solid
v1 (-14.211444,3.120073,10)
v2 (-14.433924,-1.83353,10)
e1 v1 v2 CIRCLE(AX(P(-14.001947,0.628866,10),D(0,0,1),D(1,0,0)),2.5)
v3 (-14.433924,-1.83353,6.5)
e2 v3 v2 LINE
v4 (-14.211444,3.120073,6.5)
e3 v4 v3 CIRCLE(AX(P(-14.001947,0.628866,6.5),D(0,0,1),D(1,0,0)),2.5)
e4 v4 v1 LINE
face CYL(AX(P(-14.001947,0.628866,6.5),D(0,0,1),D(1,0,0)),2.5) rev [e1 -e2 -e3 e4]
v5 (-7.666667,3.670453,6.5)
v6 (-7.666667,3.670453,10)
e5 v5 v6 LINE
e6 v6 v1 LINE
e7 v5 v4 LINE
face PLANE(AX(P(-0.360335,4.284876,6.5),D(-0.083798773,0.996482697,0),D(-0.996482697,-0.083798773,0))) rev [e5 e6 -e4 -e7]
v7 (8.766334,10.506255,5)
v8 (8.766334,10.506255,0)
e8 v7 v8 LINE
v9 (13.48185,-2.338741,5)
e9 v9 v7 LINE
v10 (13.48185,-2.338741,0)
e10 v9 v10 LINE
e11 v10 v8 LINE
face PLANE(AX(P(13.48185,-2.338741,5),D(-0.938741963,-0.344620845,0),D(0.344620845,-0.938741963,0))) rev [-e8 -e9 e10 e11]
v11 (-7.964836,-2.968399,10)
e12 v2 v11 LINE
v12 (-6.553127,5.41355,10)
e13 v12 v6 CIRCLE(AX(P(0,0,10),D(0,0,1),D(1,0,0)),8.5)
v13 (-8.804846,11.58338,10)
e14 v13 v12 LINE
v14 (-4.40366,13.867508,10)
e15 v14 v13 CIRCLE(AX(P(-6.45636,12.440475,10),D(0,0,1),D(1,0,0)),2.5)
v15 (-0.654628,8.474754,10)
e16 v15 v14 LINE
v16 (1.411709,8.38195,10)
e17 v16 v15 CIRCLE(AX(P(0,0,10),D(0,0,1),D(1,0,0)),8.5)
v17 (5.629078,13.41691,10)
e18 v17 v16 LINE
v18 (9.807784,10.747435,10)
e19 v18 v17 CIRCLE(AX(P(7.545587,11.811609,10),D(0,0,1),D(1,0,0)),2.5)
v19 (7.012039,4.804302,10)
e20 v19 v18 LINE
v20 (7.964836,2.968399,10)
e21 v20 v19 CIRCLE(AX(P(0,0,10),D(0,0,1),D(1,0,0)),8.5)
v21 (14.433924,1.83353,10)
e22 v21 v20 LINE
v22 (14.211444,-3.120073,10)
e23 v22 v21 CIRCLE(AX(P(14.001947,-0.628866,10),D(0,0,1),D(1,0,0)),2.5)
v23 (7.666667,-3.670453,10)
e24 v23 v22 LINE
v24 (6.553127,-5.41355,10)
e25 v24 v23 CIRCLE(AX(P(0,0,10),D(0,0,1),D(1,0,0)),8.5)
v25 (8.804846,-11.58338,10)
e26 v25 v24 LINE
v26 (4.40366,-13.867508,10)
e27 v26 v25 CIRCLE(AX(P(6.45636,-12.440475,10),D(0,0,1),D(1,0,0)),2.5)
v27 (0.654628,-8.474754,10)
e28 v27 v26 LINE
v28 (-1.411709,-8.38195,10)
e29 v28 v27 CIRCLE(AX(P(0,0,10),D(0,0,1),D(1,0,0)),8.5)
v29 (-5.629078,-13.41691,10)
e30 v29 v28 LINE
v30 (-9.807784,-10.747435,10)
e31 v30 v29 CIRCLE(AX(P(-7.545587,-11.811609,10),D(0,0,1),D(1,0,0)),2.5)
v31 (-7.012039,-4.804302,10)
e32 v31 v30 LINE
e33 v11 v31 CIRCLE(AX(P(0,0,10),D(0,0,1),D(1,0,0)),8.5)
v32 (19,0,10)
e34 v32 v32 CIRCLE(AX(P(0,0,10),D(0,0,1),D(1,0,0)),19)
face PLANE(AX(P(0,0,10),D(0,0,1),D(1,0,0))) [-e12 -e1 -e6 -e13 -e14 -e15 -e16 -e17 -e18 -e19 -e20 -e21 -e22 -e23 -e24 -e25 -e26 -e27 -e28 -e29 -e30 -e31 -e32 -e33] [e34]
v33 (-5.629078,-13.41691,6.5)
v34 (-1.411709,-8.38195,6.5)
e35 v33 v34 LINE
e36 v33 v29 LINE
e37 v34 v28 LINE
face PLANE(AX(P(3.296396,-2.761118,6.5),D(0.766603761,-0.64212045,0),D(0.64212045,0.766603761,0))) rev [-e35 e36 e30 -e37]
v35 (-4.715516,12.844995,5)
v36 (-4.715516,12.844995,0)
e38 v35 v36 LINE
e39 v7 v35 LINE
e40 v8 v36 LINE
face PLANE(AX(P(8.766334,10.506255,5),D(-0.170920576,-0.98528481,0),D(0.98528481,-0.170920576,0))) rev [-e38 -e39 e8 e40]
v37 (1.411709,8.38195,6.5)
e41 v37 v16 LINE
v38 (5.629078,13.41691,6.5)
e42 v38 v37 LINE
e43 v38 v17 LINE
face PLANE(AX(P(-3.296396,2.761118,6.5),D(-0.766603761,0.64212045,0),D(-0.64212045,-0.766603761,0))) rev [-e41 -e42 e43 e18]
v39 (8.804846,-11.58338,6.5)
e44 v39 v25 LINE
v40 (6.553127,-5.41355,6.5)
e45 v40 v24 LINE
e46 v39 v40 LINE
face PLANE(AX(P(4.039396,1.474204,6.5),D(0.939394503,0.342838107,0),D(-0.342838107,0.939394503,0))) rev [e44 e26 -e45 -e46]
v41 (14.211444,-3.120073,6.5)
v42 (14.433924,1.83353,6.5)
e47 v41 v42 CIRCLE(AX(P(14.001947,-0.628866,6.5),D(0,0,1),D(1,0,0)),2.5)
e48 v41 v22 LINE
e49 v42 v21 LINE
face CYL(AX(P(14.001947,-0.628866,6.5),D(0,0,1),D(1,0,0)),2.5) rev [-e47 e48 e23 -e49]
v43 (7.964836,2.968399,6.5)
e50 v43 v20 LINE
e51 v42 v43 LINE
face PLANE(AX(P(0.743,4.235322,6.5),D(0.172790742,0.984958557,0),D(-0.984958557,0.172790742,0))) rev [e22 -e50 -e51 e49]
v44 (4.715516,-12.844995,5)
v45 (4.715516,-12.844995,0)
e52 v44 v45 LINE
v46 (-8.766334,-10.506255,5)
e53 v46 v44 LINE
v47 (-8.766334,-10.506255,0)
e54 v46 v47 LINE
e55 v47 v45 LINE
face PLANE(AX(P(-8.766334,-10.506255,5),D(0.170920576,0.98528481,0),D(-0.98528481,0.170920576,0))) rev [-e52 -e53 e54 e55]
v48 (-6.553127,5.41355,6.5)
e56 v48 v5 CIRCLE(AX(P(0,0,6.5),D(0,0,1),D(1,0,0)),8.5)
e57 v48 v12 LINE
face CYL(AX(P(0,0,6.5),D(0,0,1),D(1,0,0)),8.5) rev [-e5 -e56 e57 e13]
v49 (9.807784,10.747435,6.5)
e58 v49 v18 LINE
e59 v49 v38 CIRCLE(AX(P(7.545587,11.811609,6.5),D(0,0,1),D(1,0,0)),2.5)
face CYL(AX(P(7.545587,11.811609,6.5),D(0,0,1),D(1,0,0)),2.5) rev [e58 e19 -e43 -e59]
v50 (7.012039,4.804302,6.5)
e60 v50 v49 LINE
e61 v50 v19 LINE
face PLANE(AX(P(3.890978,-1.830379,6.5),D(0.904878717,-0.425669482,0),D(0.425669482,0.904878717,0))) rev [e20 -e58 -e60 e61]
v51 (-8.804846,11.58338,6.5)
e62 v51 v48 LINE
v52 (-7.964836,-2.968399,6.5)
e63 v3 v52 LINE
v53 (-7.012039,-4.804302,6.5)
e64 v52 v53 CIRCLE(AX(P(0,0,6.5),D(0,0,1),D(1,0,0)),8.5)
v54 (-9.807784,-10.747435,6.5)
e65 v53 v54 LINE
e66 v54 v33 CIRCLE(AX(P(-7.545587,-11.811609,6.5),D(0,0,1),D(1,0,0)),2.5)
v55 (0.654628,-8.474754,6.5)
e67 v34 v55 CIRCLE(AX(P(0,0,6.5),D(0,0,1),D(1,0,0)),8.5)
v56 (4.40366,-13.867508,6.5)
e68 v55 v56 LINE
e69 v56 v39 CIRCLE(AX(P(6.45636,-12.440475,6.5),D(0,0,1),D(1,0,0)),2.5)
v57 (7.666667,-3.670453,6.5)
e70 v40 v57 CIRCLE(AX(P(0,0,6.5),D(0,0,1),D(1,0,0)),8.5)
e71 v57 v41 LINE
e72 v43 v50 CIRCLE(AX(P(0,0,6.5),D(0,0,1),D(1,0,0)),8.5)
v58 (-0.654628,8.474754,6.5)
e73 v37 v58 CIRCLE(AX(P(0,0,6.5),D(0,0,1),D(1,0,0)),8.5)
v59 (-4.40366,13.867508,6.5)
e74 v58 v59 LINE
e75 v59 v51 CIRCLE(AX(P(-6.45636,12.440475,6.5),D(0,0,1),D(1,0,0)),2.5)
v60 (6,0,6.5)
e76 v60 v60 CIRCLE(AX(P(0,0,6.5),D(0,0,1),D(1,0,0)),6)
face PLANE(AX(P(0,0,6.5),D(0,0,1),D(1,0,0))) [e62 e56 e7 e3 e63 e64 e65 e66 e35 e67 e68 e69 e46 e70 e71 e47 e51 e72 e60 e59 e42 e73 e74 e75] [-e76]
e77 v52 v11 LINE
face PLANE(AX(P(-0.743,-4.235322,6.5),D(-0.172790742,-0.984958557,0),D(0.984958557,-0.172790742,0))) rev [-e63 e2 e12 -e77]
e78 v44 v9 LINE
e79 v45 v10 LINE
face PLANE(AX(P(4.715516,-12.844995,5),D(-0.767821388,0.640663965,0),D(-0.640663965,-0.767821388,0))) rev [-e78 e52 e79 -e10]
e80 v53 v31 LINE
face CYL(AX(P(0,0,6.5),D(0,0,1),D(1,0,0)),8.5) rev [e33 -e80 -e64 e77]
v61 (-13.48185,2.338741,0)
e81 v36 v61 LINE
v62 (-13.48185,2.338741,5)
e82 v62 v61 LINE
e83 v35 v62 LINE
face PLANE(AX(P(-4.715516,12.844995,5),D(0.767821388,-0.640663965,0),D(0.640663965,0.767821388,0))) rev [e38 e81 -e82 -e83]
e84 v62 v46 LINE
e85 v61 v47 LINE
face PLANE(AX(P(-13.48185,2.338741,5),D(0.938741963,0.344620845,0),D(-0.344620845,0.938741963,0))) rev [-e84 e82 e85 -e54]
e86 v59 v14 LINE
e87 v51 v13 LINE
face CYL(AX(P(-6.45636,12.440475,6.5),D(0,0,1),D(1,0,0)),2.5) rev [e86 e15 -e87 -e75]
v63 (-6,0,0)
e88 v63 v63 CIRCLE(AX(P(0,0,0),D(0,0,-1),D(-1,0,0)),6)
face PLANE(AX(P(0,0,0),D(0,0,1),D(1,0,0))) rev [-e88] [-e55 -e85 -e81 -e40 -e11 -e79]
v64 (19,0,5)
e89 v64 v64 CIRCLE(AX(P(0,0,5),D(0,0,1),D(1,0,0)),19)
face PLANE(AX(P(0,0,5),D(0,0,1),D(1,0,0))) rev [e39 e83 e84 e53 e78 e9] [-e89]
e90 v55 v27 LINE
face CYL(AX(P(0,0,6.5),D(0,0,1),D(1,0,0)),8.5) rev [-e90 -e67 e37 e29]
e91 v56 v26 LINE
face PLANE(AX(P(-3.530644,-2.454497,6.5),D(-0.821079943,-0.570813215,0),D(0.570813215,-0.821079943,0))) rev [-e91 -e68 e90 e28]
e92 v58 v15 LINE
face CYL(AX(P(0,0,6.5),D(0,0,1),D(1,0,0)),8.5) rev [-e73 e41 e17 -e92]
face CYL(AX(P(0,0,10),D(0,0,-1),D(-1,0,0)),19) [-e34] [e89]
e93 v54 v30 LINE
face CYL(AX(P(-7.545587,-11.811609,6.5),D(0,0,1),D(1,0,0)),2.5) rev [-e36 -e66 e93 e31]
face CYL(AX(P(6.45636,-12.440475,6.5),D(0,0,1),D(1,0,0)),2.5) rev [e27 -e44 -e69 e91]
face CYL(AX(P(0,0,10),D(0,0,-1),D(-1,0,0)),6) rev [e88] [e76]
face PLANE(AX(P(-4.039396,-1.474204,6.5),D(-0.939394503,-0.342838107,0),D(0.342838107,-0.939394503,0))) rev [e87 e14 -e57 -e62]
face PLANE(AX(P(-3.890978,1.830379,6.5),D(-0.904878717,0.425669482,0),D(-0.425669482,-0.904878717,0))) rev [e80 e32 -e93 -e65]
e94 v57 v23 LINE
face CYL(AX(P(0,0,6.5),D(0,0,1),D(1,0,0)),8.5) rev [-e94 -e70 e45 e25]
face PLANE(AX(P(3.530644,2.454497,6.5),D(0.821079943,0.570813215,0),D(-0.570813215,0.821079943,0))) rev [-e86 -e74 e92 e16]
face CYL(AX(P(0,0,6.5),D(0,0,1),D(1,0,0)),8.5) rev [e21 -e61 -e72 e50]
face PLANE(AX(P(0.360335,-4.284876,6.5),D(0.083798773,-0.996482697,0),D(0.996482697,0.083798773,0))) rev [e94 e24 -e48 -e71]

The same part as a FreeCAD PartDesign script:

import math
import FreeCAD as App
import Part
import Sketcher

V = App.Vector
Q = App.Units.Quantity


def add_polygon(sketch, points):
    """Adds a closed chain of lines whose ends are joined by coincident constraints."""
    first, n = sketch.GeometryCount, len(points)
    for a, b in zip(points, points[1:] + points[:1]):
        sketch.addGeometry(Part.LineSegment(App.Vector(*a, 0), App.Vector(*b, 0)), False)
    for i in range(n):
        sketch.addConstraint(Sketcher.Constraint("Coincident", first + i, 2, first + (i + 1) % n, 1))

doc = App.newDocument("Part")
body = doc.addObject("PartDesign::Body", "Body")

# Sketch on XY plane
sketch1 = doc.addObject("Sketcher::SketchObject", "Sketch")
body.addObject(sketch1)
sketch1.AttachmentSupport = (doc.XY_Plane, [""])
sketch1.MapMode = "FlatFace"
add_polygon(sketch1, [(9, 11), (-5, 13), (-13, 2), (-9, -11), (5, -13), (13, -2)])  # lines 0-5
sketch1.addConstraint(Sketcher.Constraint("Symmetric", 0, 2, 3, 2, -1, 1))
sketch1.addConstraint(Sketcher.Constraint("Symmetric", 1, 2, 4, 2, -1, 1))
sketch1.addConstraint(Sketcher.Constraint("Symmetric", 2, 2, 5, 2, -1, 1))
sketch1.addConstraint(Sketcher.Constraint("Equal", 0, 1))
sketch1.addConstraint(Sketcher.Constraint("Equal", 1, 2))
sketch1.addConstraint(Sketcher.Constraint("Distance", 0, Q("13.683201 mm")))
sketch1.addConstraint(Sketcher.Constraint("DistanceX", 1, 2, 4, 2, Q("26.963701 mm")))
sketch1.addConstraint(Sketcher.Constraint("DistanceY", -1, 1, 1, 2, Q("2.338741 mm")))
sketch1.addConstraint(Sketcher.Constraint("DistanceY", 2, 2, 0, 2, Q("23.35125 mm")))
pad1 = doc.addObject("PartDesign::Pad", "Pad")
body.addObject(pad1)
pad1.Profile = sketch1
pad1.Length = 5

# Sketch on XY plane
sketch2 = doc.addObject("Sketcher::SketchObject", "Sketch001")
body.addObject(sketch2)
sketch2.AttachmentSupport = (doc.XY_Plane, [""])
sketch2.MapMode = "FlatFace"
sketch2.AttachmentOffset = App.Placement(V(0, 0, 5), App.Rotation())
sketch2.addGeometry(Part.Circle(V(0, 0, 0), V(0, 0, 1), 19), False)
sketch2.addConstraint(Sketcher.Constraint("Coincident", 0, 3, -1, 1))
sketch2.addConstraint(Sketcher.Constraint("Diameter", 0, Q("38 mm")))
pad2 = doc.addObject("PartDesign::Pad", "Pad001")
body.addObject(pad2)
pad2.Profile = sketch2
pad2.Length = 5

# Sketch on XY plane
sketch3 = doc.addObject("Sketcher::SketchObject", "Sketch002")
body.addObject(sketch3)
sketch3.AttachmentSupport = (doc.XY_Plane, [""])
sketch3.MapMode = "FlatFace"
sketch3.AttachmentOffset = App.Placement(V(0, 0, 10), App.Rotation())
sketch3.addGeometry(Part.LineSegment(V(7.7, -3.7, 0), V(14.2, -3.1, 0)), False)
sketch3.addGeometry(Part.ArcOfCircle(Part.Circle(V(14, -0.6, 0), V(0, 0, 1), 2.5), math.radians(-85), math.radians(80)), False)
sketch3.addGeometry(Part.LineSegment(V(14.4, 1.8, 0), V(8, 3, 0)), False)
sketch3.addGeometry(Part.ArcOfCircle(Part.Circle(V(0, 0, 0), V(0, 0, 1), 8.5), math.radians(20.44), math.radians(34.42)), False)
sketch3.addGeometry(Part.LineSegment(V(7, 4.8, 0), V(9.8, 10.7, 0)), False)
sketch3.addGeometry(Part.ArcOfCircle(Part.Circle(V(7.5, 11.8, 0), V(0, 0, 1), 2.5), math.radians(-25), math.radians(140)), False)
sketch3.addGeometry(Part.LineSegment(V(5.6, 13.4, 0), V(1.4, 8.4, 0)), False)
sketch3.addGeometry(Part.ArcOfCircle(Part.Circle(V(0, 0, 0), V(0, 0, 1), 8.5), math.radians(80.44), math.radians(94.42)), False)
sketch3.addGeometry(Part.LineSegment(V(-0.7, 8.5, 0), V(-4.4, 13.9, 0)), False)
sketch3.addGeometry(Part.ArcOfCircle(Part.Circle(V(-6.5, 12.4, 0), V(0, 0, 1), 2.5), math.radians(35), math.radians(200)), False)
sketch3.addGeometry(Part.LineSegment(V(-8.8, 11.6, 0), V(-6.6, 5.4, 0)), False)
sketch3.addGeometry(Part.ArcOfCircle(Part.Circle(V(0, 0, 0), V(0, 0, 1), 8.5), math.radians(140.44), math.radians(154.42)), False)
sketch3.addGeometry(Part.LineSegment(V(-7.7, 3.7, 0), V(-14.2, 3.1, 0)), False)
sketch3.addGeometry(Part.ArcOfCircle(Part.Circle(V(-14, 0.6, 0), V(0, 0, 1), 2.5), math.radians(95), math.radians(260)), False)
sketch3.addGeometry(Part.LineSegment(V(-14.4, -1.8, 0), V(-8, -3, 0)), False)
sketch3.addGeometry(Part.ArcOfCircle(Part.Circle(V(0, 0, 0), V(0, 0, 1), 8.5), math.radians(-159.56), math.radians(-145.58)), False)
sketch3.addGeometry(Part.LineSegment(V(-7, -4.8, 0), V(-9.8, -10.7, 0)), False)
sketch3.addGeometry(Part.ArcOfCircle(Part.Circle(V(-7.5, -11.8, 0), V(0, 0, 1), 2.5), math.radians(155), math.radians(320)), False)
sketch3.addGeometry(Part.LineSegment(V(-5.6, -13.4, 0), V(-1.4, -8.4, 0)), False)
sketch3.addGeometry(Part.ArcOfCircle(Part.Circle(V(0, 0, 0), V(0, 0, 1), 8.5), math.radians(-99.56), math.radians(-85.58)), False)
sketch3.addGeometry(Part.LineSegment(V(0.7, -8.5, 0), V(4.4, -13.9, 0)), False)
sketch3.addGeometry(Part.ArcOfCircle(Part.Circle(V(6.5, -12.4, 0), V(0, 0, 1), 2.5), math.radians(-145), math.radians(20)), False)
sketch3.addGeometry(Part.LineSegment(V(8.8, -11.6, 0), V(6.6, -5.4, 0)), False)
sketch3.addGeometry(Part.ArcOfCircle(Part.Circle(V(0, 0, 0), V(0, 0, 1), 8.5), math.radians(-39.56), math.radians(-25.58)), False)
sketch3.addConstraint(Sketcher.Constraint("Tangent", 0, 2, 1, 1))
sketch3.addConstraint(Sketcher.Constraint("Tangent", 1, 2, 2, 1))
sketch3.addConstraint(Sketcher.Constraint("Coincident", 2, 2, 3, 1))
sketch3.addConstraint(Sketcher.Constraint("Coincident", 3, 2, 4, 1))
sketch3.addConstraint(Sketcher.Constraint("Tangent", 4, 2, 5, 1))
sketch3.addConstraint(Sketcher.Constraint("Tangent", 5, 2, 6, 1))
sketch3.addConstraint(Sketcher.Constraint("Coincident", 6, 2, 7, 1))
sketch3.addConstraint(Sketcher.Constraint("Coincident", 7, 2, 8, 1))
sketch3.addConstraint(Sketcher.Constraint("Tangent", 8, 2, 9, 1))
sketch3.addConstraint(Sketcher.Constraint("Tangent", 9, 2, 10, 1))
sketch3.addConstraint(Sketcher.Constraint("Coincident", 10, 2, 11, 1))
sketch3.addConstraint(Sketcher.Constraint("Coincident", 11, 2, 12, 1))
sketch3.addConstraint(Sketcher.Constraint("Tangent", 12, 2, 13, 1))
sketch3.addConstraint(Sketcher.Constraint("Tangent", 13, 2, 14, 1))
sketch3.addConstraint(Sketcher.Constraint("Coincident", 14, 2, 15, 1))
sketch3.addConstraint(Sketcher.Constraint("Coincident", 15, 2, 16, 1))
sketch3.addConstraint(Sketcher.Constraint("Tangent", 16, 2, 17, 1))
sketch3.addConstraint(Sketcher.Constraint("Tangent", 17, 2, 18, 1))
sketch3.addConstraint(Sketcher.Constraint("Coincident", 18, 2, 19, 1))
sketch3.addConstraint(Sketcher.Constraint("Coincident", 19, 2, 20, 1))
sketch3.addConstraint(Sketcher.Constraint("Tangent", 20, 2, 21, 1))
sketch3.addConstraint(Sketcher.Constraint("Tangent", 21, 2, 22, 1))
sketch3.addConstraint(Sketcher.Constraint("Coincident", 22, 2, 23, 1))
sketch3.addConstraint(Sketcher.Constraint("Coincident", 23, 2, 0, 1))
sketch3.addConstraint(Sketcher.Constraint("Coincident", 3, 3, -1, 1))
sketch3.addConstraint(Sketcher.Constraint("Coincident", 7, 3, -1, 1))
sketch3.addConstraint(Sketcher.Constraint("Coincident", 11, 3, -1, 1))
sketch3.addConstraint(Sketcher.Constraint("Coincident", 15, 3, -1, 1))
sketch3.addConstraint(Sketcher.Constraint("Coincident", 19, 3, -1, 1))
sketch3.addConstraint(Sketcher.Constraint("Coincident", 23, 3, -1, 1))
sketch3.addConstraint(Sketcher.Constraint("Equal", 1, 5))
sketch3.addConstraint(Sketcher.Constraint("Equal", 3, 7))
sketch3.addConstraint(Sketcher.Constraint("Equal", 5, 9))
sketch3.addConstraint(Sketcher.Constraint("Equal", 7, 11))
sketch3.addConstraint(Sketcher.Constraint("Equal", 9, 13))
sketch3.addConstraint(Sketcher.Constraint("Equal", 11, 15))
sketch3.addConstraint(Sketcher.Constraint("Equal", 13, 17))
sketch3.addConstraint(Sketcher.Constraint("Equal", 15, 19))
sketch3.addConstraint(Sketcher.Constraint("Equal", 17, 21))
sketch3.addConstraint(Sketcher.Constraint("Equal", 19, 23))
sketch3.addConstraint(Sketcher.Constraint("Symmetric", 1, 3, 13, 3, -1, 1))
sketch3.addConstraint(Sketcher.Constraint("Symmetric", 5, 3, 17, 3, -1, 1))
sketch3.addConstraint(Sketcher.Constraint("Symmetric", 9, 3, 21, 3, -1, 1))
sketch3.addConstraint(Sketcher.Constraint("Parallel", 0, 12))
sketch3.addConstraint(Sketcher.Constraint("Parallel", 2, 14))
sketch3.addConstraint(Sketcher.Constraint("Parallel", 4, 16))
sketch3.addConstraint(Sketcher.Constraint("Parallel", 6, 18))
sketch3.addConstraint(Sketcher.Constraint("Parallel", 8, 20))
sketch3.addConstraint(Sketcher.Constraint("Parallel", 10, 22))
sketch3.addConstraint(Sketcher.Constraint("Equal", 0, 2))
sketch3.addConstraint(Sketcher.Constraint("Equal", 2, 4))
sketch3.addConstraint(Sketcher.Constraint("Equal", 4, 6))
sketch3.addConstraint(Sketcher.Constraint("Equal", 6, 8))
sketch3.addConstraint(Sketcher.Constraint("Equal", 8, 10))
sketch3.addConstraint(Sketcher.Constraint("Radius", 1, Q("2.5 mm")))
sketch3.addConstraint(Sketcher.Constraint("Radius", 3, Q("8.5 mm")))
sketch3.addConstraint(Sketcher.Constraint("DistanceY", -1, 1, 2, 2, Q("2.968399 mm")))
sketch3.addConstraint(Sketcher.Constraint("DistanceY", -1, 1, 3, 2, Q("4.804302 mm")))
sketch3.addConstraint(Sketcher.Constraint("DistanceY", 1, 3, 4, 2, Q("11.376301 mm")))
sketch3.addConstraint(Sketcher.Constraint("DistanceY", 5, 3, 5, 2, Q("1.605301 mm")))
sketch3.addConstraint(Sketcher.Constraint("DistanceX", 9, 3, 8, 2, Q("2.0527 mm")))
sketch3.addConstraint(Sketcher.Constraint("DistanceY", 5, 3, 8, 2, Q("2.055899 mm")))
sketch3.addConstraint(Sketcher.Constraint("DistanceX", 13, 3, 9, 2, Q("5.197101 mm")))
pocket1 = doc.addObject("PartDesign::Pocket", "Pocket")
body.addObject(pocket1)
pocket1.Profile = sketch3
pocket1.Length = 3.5

# Sketch on XY plane
sketch4 = doc.addObject("Sketcher::SketchObject", "Sketch003")
body.addObject(sketch4)
sketch4.AttachmentSupport = (doc.XY_Plane, [""])
sketch4.MapMode = "FlatFace"
sketch4.addGeometry(Part.Circle(V(0, 0, 0), V(0, 0, 1), 6), False)
sketch4.addConstraint(Sketcher.Constraint("Coincident", 0, 3, -1, 1))
sketch4.addConstraint(Sketcher.Constraint("Diameter", 0, Q("12 mm")))
pocket2 = doc.addObject("PartDesign::Pocket", "Pocket001")
body.addObject(pocket2)
pocket2.Profile = sketch4
pocket2.Type = "ThroughAll"
pocket2.Reversed = True

doc.recompute()
